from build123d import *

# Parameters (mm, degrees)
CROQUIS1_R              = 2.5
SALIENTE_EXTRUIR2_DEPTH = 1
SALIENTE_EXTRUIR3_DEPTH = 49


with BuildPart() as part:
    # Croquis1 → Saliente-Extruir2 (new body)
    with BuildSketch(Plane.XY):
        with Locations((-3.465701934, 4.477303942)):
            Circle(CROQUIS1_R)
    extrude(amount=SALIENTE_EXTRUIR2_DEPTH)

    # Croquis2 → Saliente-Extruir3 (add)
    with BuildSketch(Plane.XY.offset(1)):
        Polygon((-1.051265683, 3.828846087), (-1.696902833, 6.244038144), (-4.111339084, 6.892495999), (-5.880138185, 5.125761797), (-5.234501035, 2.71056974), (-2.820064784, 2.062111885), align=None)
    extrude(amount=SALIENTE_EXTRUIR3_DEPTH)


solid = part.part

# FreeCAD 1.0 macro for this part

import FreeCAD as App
import Part
import Sketcher
Q = App.Units.Quantity

doc = App.newDocument("Part")
body = doc.addObject("PartDesign::Body", "Body")

sketch1 = body.newObject("Sketcher::SketchObject", "Sketch")
sketch1.AttachmentSupport = (doc.getObject("XY_Plane"), [""])
sketch1.MapMode = "FlatFace"
sketch1.addGeometry(Part.Circle(App.Vector(-3.465702, 4.477304, 0), App.Vector(0, 0, 1), 2.5), False)
sketch1.addConstraint(Sketcher.Constraint("Diameter", 0, Q("5 mm")))
sketch1.addConstraint(Sketcher.Constraint("DistanceX", 0, 3, -1, 1, Q("3.465702 mm")))
sketch1.addConstraint(Sketcher.Constraint("DistanceY", -1, 1, 0, 3, Q("4.477304 mm")))
pad1 = body.newObject("PartDesign::Pad", "Pad")
pad1.Profile = sketch1
pad1.Length = 1

sketch2 = body.newObject("Sketcher::SketchObject", "Sketch001")
sketch2.AttachmentSupport = (doc.getObject("XY_Plane"), [""])
sketch2.MapMode = "FlatFace"
sketch2.AttachmentOffset = App.Placement(App.Vector(0, 0, 1), App.Rotation())
sketch2.addGeometry(Part.LineSegment(App.Vector(-1.051266, 3.828846, 0), App.Vector(-1.696903, 6.244038, 0)), False)
sketch2.addGeometry(Part.LineSegment(App.Vector(-1.696903, 6.244038, 0), App.Vector(-4.111339, 6.892496, 0)), False)
sketch2.addGeometry(Part.LineSegment(App.Vector(-4.111339, 6.892496, 0), App.Vector(-5.880138, 5.125762, 0)), False)
sketch2.addGeometry(Part.LineSegment(App.Vector(-5.880138, 5.125762, 0), App.Vector(-5.234501, 2.71057, 0)), False)
sketch2.addGeometry(Part.LineSegment(App.Vector(-5.234501, 2.71057, 0), App.Vector(-2.820065, 2.062112, 0)), False)
sketch2.addGeometry(Part.LineSegment(App.Vector(-2.820065, 2.062112, 0), App.Vector(-1.051266, 3.828846, 0)), False)
sketch2.addConstraint(Sketcher.Constraint("Coincident", 0, 2, 1, 1))
sketch2.addConstraint(Sketcher.Constraint("Coincident", 1, 2, 2, 1))
sketch2.addConstraint(Sketcher.Constraint("Coincident", 2, 2, 3, 1))
sketch2.addConstraint(Sketcher.Constraint("Coincident", 3, 2, 4, 1))
sketch2.addConstraint(Sketcher.Constraint("Coincident", 4, 2, 5, 1))
sketch2.addConstraint(Sketcher.Constraint("Coincident", 5, 2, 0, 1))
sketch2.addConstraint(Sketcher.Constraint("Parallel", 0, 3))
sketch2.addConstraint(Sketcher.Constraint("Parallel", 1, 4))
sketch2.addConstraint(Sketcher.Constraint("Parallel", 2, 5))
sketch2.addConstraint(Sketcher.Constraint("Equal", 0, 1))
sketch2.addConstraint(Sketcher.Constraint("Equal", 1, 2))
sketch2.addConstraint(Sketcher.Constraint("Equal", 2, 3))
sketch2.addConstraint(Sketcher.Constraint("Distance", 0, Q("2.5 mm")))
sketch2.addConstraint(Sketcher.Constraint("DistanceX", 3, 2, -1, 1, Q("5.234501 mm")))
sketch2.addConstraint(Sketcher.Constraint("DistanceX", 2, 2, 1, 2, Q("1.768799 mm")))
sketch2.addConstraint(Sketcher.Constraint("DistanceX", 3, 2, 0, 2, Q("3.537598 mm")))
sketch2.addConstraint(Sketcher.Constraint("DistanceY", -1, 1, 0, 2, Q("6.244038 mm")))
sketch2.addConstraint(Sketcher.Constraint("DistanceX", 1, 2, -1, 1, Q("4.111339 mm")))
pad2 = body.newObject("PartDesign::Pad", "Pad001")
pad2.Profile = sketch2
pad2.Length = 49

doc.recompute()
